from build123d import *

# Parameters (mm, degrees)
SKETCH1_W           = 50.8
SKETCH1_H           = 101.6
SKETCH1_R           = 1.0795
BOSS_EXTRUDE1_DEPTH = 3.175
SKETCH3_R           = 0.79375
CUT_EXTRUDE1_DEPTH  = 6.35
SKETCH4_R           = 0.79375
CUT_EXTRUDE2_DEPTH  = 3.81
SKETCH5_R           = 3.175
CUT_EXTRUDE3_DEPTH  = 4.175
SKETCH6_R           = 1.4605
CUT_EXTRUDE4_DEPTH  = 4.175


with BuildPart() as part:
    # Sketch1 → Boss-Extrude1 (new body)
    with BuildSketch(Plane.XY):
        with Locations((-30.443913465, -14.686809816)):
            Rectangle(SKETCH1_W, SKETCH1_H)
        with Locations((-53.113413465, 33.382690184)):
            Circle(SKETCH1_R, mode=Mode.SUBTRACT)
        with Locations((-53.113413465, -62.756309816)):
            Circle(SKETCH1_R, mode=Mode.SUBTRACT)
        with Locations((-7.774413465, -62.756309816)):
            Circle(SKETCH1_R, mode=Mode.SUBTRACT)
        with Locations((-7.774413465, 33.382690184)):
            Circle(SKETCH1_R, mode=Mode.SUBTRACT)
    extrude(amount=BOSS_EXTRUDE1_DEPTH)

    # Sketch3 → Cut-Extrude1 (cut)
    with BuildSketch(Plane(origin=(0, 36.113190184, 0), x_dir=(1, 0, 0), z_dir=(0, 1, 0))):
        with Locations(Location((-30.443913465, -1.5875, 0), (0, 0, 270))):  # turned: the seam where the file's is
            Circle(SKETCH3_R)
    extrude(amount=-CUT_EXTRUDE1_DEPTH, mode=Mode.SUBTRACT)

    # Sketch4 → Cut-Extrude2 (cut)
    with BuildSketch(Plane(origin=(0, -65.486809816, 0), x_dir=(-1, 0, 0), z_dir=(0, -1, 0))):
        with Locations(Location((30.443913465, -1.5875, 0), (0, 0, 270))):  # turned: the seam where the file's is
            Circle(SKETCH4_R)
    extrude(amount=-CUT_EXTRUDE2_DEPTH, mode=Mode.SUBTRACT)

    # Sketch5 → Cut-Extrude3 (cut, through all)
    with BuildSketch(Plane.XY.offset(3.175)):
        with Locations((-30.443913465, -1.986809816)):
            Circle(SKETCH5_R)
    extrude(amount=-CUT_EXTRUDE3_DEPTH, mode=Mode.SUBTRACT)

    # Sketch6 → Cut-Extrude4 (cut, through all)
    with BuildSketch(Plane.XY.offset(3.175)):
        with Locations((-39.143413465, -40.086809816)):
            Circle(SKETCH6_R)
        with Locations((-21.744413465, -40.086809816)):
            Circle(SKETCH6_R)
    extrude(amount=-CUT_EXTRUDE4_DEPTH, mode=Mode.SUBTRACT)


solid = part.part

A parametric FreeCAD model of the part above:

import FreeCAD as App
import Part
import Sketcher

V = App.Vector
Q = App.Units.Quantity

doc = App.newDocument("Part")
body = doc.addObject("PartDesign::Body", "Body")

sketch1 = body.newObject("Sketcher::SketchObject", "Sketch")
sketch1.AttachmentSupport = (doc.getObject("XY_Plane"), [""])
sketch1.MapMode = "FlatFace"
sketch1.addGeometry([
    Part.LineSegment(V(-55.8, 36.1, 0), V(-55.8, -65.5, 0)),
    Part.LineSegment(V(-55.8, -65.5, 0), V(-5, -65.5, 0)),
    Part.LineSegment(V(-5, -65.5, 0), V(-5, 36.1, 0)),
    Part.LineSegment(V(-5, 36.1, 0), V(-55.8, 36.1, 0)),
    Part.Circle(V(-53.1, -62.8, 0), V(0, 0, 1), 1.1),
    Part.Circle(V(-7.8, -62.8, 0), V(0, 0, 1), 1.1),
    Part.Circle(V(-53.1, 33.4, 0), V(0, 0, 1), 1.1),
    Part.Circle(V(-7.8, 33.4, 0), V(0, 0, 1), 1.1),
], False)
sketch1.addConstraint([
    Sketcher.Constraint("Coincident", 0, 2, 1, 1),
    Sketcher.Constraint("Coincident", 1, 2, 2, 1),
    Sketcher.Constraint("Coincident", 2, 2, 3, 1),
    Sketcher.Constraint("Coincident", 3, 2, 0, 1),
    Sketcher.Constraint("Vertical", 0),
    Sketcher.Constraint("Horizontal", 1),
    Sketcher.Constraint("Vertical", 2),
    Sketcher.Constraint("Horizontal", 3),
    Sketcher.Constraint("Equal", 4, 5),
    Sketcher.Constraint("Equal", 5, 6),
    Sketcher.Constraint("Equal", 6, 7),
    Sketcher.Constraint("Horizontal", 4, 3, 5, 3),
    Sketcher.Constraint("Horizontal", 6, 3, 7, 3),
    Sketcher.Constraint("Vertical", 4, 3, 6, 3),
    Sketcher.Constraint("Vertical", 5, 3, 7, 3),
    Sketcher.Constraint("DistanceX", 1, 1, 1, 2, Q("2 in")),
    Sketcher.Constraint("DistanceY", 0, 2, 0, 1, Q("4 in")),
    Sketcher.Constraint("Diameter", 4, Q("0.085 in")),
    Sketcher.Constraint("DistanceX", 4, 3, 5, 3, Q("1.785 in")),
    Sketcher.Constraint("DistanceY", 4, 3, 6, 3, Q("3.785 in")),
    Sketcher.Constraint("DistanceX", 0, 2, 4, 3, Q("0.1075 in")),
    Sketcher.Constraint("DistanceY", 0, 2, 4, 3, Q("0.1075 in")),
    Sketcher.Constraint("DistanceY", 4, 3, -1, 1, 62.75631),
    Sketcher.Constraint("DistanceX", 4, 3, -1, 1, 53.113413),
])
pad1 = body.newObject("PartDesign::Pad", "Pad")
pad1.Profile = sketch1
pad1.Length = Q("0.125 in")

sketch2 = body.newObject("Sketcher::SketchObject", "Sketch001")
sketch2.AttachmentSupport = (doc.getObject("XZ_Plane"), [""])
sketch2.MapMode = "FlatFace"
sketch2.AttachmentOffset = App.Placement(V(0, 0, -36.11319), App.Rotation())
sketch2.addGeometry(Part.Circle(V(-30.4, 1.6, 0), V(0, 0, 1), 0.8), False)
sketch2.addConstraint([
    Sketcher.Constraint("Diameter", 0, Q("0.0625 in")),
    Sketcher.Constraint("DistanceY", -1, 1, 0, 3, Q("0.0625 in")),
    Sketcher.Constraint("DistanceX", 0, 3, -1, 1, 30.443913),
])
pocket1 = body.newObject("PartDesign::Pocket", "Pocket")
pocket1.Profile = sketch2
pocket1.Length = Q("0.25 in")
pocket1.Reversed = True

sketch3 = body.newObject("Sketcher::SketchObject", "Sketch002")
sketch3.AttachmentSupport = (doc.getObject("XZ_Plane"), [""])
sketch3.MapMode = "FlatFace"
sketch3.AttachmentOffset = App.Placement(V(0, 0, 65.48681), App.Rotation())
sketch3.addGeometry(Part.Circle(V(-30.4, 1.6, 0), V(0, 0, 1), 0.8), False)
sketch3.addConstraint([
    Sketcher.Constraint("Diameter", 0, Q("0.0625 in")),
    Sketcher.Constraint("DistanceY", -1, 1, 0, 3, Q("0.0625 in")),
    Sketcher.Constraint("DistanceX", 0, 3, -1, 1, 30.443913),
])
pocket2 = body.newObject("PartDesign::Pocket", "Pocket001")
pocket2.Profile = sketch3
pocket2.Length = Q("0.15 in")

sketch4 = body.newObject("Sketcher::SketchObject", "Sketch003")
sketch4.AttachmentSupport = (doc.getObject("XY_Plane"), [""])
sketch4.MapMode = "FlatFace"
sketch4.AttachmentOffset = App.Placement(V(0, 0, 0.125 * 25.4), App.Rotation())
sketch4.addGeometry(Part.Circle(V(-30.4, -2, 0), V(0, 0, 1), 3.2), False)
sketch4.addConstraint([
    Sketcher.Constraint("Diameter", 0, Q("0.25 in")),
    Sketcher.Constraint("DistanceY", 0, 3, -1, 1, 1.98681),
    Sketcher.Constraint("DistanceX", 0, 3, -1, 1, 30.443913),
])
pocket3 = body.newObject("PartDesign::Pocket", "Pocket002")
pocket3.Profile = sketch4
pocket3.Type = "ThroughAll"

sketch5 = body.newObject("Sketcher::SketchObject", "Sketch004")
sketch5.AttachmentSupport = (doc.getObject("XY_Plane"), [""])
sketch5.MapMode = "FlatFace"
sketch5.AttachmentOffset = App.Placement(V(0, 0, 0.125 * 25.4), App.Rotation())
sketch5.addGeometry([
    Part.Circle(V(-39.1, -40.1, 0), V(0, 0, 1), 1.5),
    Part.Circle(V(-21.7, -40.1, 0), V(0, 0, 1), 1.5),
], False)
sketch5.addConstraint([
    Sketcher.Constraint("Equal", 0, 1),
    Sketcher.Constraint("Horizontal", 0, 3, 1, 3),
    Sketcher.Constraint("Diameter", 0, Q("0.115 in")),
    Sketcher.Constraint("DistanceX", 0, 3, 1, 3, Q("0.685 in")),
    Sketcher.Constraint("DistanceY", 0, 3, -1, 1, 40.08681),
    Sketcher.Constraint("DistanceX", 0, 3, -1, 1, 39.143413),
])
pocket4 = body.newObject("PartDesign::Pocket", "Pocket003")
pocket4.Profile = sketch5
pocket4.Type = "ThroughAll"

doc.recompute()
